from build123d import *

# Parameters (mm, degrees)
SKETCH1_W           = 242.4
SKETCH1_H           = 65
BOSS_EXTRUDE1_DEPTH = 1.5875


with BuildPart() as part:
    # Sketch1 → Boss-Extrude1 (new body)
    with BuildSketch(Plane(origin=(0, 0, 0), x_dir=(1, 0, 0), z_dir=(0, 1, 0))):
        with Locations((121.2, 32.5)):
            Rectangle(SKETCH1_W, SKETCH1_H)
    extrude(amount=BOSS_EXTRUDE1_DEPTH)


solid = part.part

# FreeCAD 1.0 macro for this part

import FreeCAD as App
import Part
import Sketcher

doc = App.newDocument("Part")
body = doc.addObject("PartDesign::Body", "Body")

sketch1 = body.newObject("Sketcher::SketchObject", "Sketch")
sketch1.AttachmentSupport = (doc.getObject("XZ_Plane"), [""])
sketch1.MapMode = "FlatFace"
sketch1.addGeometry(Part.LineSegment(App.Vector(0, -65, 0), App.Vector(0, 0, 0)), False)
sketch1.addGeometry(Part.LineSegment(App.Vector(0, 0, 0), App.Vector(242.4, 0, 0)), False)
sketch1.addGeometry(Part.LineSegment(App.Vector(242.4, 0, 0), App.Vector(242.4, -65, 0)), False)
sketch1.addGeometry(Part.LineSegment(App.Vector(242.4, -65, 0), App.Vector(0, -65, 0)), False)
sketch1.addConstraint(Sketcher.Constraint("Coincident", 0, 2, 1, 1))
sketch1.addConstraint(Sketcher.Constraint("Coincident", 1, 2, 2, 1))
sketch1.addConstraint(Sketcher.Constraint("Coincident", 2, 2, 3, 1))
sketch1.addConstraint(Sketcher.Constraint("Coincident", 3, 2, 0, 1))
sketch1.addConstraint(Sketcher.Constraint("Vertical", 0))
sketch1.addConstraint(Sketcher.Constraint("Horizontal", 1))
sketch1.addConstraint(Sketcher.Constraint("Vertical", 2))
sketch1.addConstraint(Sketcher.Constraint("Horizontal", 3))
sketch1.addConstraint(Sketcher.Constraint("Coincident", 0, 2, -1, 1))
sketch1.addConstraint(Sketcher.Constraint("DistanceY", 0, 1, 0, 2, 65.0))
sketch1.addConstraint(Sketcher.Constraint("DistanceX", 1, 1, 1, 2, 242.4))
pad1 = body.newObject("PartDesign::Pad", "Pad")
pad1.Profile = sketch1
pad1.Length = 1.5875
pad1.Reversed = True

doc.recompute()
